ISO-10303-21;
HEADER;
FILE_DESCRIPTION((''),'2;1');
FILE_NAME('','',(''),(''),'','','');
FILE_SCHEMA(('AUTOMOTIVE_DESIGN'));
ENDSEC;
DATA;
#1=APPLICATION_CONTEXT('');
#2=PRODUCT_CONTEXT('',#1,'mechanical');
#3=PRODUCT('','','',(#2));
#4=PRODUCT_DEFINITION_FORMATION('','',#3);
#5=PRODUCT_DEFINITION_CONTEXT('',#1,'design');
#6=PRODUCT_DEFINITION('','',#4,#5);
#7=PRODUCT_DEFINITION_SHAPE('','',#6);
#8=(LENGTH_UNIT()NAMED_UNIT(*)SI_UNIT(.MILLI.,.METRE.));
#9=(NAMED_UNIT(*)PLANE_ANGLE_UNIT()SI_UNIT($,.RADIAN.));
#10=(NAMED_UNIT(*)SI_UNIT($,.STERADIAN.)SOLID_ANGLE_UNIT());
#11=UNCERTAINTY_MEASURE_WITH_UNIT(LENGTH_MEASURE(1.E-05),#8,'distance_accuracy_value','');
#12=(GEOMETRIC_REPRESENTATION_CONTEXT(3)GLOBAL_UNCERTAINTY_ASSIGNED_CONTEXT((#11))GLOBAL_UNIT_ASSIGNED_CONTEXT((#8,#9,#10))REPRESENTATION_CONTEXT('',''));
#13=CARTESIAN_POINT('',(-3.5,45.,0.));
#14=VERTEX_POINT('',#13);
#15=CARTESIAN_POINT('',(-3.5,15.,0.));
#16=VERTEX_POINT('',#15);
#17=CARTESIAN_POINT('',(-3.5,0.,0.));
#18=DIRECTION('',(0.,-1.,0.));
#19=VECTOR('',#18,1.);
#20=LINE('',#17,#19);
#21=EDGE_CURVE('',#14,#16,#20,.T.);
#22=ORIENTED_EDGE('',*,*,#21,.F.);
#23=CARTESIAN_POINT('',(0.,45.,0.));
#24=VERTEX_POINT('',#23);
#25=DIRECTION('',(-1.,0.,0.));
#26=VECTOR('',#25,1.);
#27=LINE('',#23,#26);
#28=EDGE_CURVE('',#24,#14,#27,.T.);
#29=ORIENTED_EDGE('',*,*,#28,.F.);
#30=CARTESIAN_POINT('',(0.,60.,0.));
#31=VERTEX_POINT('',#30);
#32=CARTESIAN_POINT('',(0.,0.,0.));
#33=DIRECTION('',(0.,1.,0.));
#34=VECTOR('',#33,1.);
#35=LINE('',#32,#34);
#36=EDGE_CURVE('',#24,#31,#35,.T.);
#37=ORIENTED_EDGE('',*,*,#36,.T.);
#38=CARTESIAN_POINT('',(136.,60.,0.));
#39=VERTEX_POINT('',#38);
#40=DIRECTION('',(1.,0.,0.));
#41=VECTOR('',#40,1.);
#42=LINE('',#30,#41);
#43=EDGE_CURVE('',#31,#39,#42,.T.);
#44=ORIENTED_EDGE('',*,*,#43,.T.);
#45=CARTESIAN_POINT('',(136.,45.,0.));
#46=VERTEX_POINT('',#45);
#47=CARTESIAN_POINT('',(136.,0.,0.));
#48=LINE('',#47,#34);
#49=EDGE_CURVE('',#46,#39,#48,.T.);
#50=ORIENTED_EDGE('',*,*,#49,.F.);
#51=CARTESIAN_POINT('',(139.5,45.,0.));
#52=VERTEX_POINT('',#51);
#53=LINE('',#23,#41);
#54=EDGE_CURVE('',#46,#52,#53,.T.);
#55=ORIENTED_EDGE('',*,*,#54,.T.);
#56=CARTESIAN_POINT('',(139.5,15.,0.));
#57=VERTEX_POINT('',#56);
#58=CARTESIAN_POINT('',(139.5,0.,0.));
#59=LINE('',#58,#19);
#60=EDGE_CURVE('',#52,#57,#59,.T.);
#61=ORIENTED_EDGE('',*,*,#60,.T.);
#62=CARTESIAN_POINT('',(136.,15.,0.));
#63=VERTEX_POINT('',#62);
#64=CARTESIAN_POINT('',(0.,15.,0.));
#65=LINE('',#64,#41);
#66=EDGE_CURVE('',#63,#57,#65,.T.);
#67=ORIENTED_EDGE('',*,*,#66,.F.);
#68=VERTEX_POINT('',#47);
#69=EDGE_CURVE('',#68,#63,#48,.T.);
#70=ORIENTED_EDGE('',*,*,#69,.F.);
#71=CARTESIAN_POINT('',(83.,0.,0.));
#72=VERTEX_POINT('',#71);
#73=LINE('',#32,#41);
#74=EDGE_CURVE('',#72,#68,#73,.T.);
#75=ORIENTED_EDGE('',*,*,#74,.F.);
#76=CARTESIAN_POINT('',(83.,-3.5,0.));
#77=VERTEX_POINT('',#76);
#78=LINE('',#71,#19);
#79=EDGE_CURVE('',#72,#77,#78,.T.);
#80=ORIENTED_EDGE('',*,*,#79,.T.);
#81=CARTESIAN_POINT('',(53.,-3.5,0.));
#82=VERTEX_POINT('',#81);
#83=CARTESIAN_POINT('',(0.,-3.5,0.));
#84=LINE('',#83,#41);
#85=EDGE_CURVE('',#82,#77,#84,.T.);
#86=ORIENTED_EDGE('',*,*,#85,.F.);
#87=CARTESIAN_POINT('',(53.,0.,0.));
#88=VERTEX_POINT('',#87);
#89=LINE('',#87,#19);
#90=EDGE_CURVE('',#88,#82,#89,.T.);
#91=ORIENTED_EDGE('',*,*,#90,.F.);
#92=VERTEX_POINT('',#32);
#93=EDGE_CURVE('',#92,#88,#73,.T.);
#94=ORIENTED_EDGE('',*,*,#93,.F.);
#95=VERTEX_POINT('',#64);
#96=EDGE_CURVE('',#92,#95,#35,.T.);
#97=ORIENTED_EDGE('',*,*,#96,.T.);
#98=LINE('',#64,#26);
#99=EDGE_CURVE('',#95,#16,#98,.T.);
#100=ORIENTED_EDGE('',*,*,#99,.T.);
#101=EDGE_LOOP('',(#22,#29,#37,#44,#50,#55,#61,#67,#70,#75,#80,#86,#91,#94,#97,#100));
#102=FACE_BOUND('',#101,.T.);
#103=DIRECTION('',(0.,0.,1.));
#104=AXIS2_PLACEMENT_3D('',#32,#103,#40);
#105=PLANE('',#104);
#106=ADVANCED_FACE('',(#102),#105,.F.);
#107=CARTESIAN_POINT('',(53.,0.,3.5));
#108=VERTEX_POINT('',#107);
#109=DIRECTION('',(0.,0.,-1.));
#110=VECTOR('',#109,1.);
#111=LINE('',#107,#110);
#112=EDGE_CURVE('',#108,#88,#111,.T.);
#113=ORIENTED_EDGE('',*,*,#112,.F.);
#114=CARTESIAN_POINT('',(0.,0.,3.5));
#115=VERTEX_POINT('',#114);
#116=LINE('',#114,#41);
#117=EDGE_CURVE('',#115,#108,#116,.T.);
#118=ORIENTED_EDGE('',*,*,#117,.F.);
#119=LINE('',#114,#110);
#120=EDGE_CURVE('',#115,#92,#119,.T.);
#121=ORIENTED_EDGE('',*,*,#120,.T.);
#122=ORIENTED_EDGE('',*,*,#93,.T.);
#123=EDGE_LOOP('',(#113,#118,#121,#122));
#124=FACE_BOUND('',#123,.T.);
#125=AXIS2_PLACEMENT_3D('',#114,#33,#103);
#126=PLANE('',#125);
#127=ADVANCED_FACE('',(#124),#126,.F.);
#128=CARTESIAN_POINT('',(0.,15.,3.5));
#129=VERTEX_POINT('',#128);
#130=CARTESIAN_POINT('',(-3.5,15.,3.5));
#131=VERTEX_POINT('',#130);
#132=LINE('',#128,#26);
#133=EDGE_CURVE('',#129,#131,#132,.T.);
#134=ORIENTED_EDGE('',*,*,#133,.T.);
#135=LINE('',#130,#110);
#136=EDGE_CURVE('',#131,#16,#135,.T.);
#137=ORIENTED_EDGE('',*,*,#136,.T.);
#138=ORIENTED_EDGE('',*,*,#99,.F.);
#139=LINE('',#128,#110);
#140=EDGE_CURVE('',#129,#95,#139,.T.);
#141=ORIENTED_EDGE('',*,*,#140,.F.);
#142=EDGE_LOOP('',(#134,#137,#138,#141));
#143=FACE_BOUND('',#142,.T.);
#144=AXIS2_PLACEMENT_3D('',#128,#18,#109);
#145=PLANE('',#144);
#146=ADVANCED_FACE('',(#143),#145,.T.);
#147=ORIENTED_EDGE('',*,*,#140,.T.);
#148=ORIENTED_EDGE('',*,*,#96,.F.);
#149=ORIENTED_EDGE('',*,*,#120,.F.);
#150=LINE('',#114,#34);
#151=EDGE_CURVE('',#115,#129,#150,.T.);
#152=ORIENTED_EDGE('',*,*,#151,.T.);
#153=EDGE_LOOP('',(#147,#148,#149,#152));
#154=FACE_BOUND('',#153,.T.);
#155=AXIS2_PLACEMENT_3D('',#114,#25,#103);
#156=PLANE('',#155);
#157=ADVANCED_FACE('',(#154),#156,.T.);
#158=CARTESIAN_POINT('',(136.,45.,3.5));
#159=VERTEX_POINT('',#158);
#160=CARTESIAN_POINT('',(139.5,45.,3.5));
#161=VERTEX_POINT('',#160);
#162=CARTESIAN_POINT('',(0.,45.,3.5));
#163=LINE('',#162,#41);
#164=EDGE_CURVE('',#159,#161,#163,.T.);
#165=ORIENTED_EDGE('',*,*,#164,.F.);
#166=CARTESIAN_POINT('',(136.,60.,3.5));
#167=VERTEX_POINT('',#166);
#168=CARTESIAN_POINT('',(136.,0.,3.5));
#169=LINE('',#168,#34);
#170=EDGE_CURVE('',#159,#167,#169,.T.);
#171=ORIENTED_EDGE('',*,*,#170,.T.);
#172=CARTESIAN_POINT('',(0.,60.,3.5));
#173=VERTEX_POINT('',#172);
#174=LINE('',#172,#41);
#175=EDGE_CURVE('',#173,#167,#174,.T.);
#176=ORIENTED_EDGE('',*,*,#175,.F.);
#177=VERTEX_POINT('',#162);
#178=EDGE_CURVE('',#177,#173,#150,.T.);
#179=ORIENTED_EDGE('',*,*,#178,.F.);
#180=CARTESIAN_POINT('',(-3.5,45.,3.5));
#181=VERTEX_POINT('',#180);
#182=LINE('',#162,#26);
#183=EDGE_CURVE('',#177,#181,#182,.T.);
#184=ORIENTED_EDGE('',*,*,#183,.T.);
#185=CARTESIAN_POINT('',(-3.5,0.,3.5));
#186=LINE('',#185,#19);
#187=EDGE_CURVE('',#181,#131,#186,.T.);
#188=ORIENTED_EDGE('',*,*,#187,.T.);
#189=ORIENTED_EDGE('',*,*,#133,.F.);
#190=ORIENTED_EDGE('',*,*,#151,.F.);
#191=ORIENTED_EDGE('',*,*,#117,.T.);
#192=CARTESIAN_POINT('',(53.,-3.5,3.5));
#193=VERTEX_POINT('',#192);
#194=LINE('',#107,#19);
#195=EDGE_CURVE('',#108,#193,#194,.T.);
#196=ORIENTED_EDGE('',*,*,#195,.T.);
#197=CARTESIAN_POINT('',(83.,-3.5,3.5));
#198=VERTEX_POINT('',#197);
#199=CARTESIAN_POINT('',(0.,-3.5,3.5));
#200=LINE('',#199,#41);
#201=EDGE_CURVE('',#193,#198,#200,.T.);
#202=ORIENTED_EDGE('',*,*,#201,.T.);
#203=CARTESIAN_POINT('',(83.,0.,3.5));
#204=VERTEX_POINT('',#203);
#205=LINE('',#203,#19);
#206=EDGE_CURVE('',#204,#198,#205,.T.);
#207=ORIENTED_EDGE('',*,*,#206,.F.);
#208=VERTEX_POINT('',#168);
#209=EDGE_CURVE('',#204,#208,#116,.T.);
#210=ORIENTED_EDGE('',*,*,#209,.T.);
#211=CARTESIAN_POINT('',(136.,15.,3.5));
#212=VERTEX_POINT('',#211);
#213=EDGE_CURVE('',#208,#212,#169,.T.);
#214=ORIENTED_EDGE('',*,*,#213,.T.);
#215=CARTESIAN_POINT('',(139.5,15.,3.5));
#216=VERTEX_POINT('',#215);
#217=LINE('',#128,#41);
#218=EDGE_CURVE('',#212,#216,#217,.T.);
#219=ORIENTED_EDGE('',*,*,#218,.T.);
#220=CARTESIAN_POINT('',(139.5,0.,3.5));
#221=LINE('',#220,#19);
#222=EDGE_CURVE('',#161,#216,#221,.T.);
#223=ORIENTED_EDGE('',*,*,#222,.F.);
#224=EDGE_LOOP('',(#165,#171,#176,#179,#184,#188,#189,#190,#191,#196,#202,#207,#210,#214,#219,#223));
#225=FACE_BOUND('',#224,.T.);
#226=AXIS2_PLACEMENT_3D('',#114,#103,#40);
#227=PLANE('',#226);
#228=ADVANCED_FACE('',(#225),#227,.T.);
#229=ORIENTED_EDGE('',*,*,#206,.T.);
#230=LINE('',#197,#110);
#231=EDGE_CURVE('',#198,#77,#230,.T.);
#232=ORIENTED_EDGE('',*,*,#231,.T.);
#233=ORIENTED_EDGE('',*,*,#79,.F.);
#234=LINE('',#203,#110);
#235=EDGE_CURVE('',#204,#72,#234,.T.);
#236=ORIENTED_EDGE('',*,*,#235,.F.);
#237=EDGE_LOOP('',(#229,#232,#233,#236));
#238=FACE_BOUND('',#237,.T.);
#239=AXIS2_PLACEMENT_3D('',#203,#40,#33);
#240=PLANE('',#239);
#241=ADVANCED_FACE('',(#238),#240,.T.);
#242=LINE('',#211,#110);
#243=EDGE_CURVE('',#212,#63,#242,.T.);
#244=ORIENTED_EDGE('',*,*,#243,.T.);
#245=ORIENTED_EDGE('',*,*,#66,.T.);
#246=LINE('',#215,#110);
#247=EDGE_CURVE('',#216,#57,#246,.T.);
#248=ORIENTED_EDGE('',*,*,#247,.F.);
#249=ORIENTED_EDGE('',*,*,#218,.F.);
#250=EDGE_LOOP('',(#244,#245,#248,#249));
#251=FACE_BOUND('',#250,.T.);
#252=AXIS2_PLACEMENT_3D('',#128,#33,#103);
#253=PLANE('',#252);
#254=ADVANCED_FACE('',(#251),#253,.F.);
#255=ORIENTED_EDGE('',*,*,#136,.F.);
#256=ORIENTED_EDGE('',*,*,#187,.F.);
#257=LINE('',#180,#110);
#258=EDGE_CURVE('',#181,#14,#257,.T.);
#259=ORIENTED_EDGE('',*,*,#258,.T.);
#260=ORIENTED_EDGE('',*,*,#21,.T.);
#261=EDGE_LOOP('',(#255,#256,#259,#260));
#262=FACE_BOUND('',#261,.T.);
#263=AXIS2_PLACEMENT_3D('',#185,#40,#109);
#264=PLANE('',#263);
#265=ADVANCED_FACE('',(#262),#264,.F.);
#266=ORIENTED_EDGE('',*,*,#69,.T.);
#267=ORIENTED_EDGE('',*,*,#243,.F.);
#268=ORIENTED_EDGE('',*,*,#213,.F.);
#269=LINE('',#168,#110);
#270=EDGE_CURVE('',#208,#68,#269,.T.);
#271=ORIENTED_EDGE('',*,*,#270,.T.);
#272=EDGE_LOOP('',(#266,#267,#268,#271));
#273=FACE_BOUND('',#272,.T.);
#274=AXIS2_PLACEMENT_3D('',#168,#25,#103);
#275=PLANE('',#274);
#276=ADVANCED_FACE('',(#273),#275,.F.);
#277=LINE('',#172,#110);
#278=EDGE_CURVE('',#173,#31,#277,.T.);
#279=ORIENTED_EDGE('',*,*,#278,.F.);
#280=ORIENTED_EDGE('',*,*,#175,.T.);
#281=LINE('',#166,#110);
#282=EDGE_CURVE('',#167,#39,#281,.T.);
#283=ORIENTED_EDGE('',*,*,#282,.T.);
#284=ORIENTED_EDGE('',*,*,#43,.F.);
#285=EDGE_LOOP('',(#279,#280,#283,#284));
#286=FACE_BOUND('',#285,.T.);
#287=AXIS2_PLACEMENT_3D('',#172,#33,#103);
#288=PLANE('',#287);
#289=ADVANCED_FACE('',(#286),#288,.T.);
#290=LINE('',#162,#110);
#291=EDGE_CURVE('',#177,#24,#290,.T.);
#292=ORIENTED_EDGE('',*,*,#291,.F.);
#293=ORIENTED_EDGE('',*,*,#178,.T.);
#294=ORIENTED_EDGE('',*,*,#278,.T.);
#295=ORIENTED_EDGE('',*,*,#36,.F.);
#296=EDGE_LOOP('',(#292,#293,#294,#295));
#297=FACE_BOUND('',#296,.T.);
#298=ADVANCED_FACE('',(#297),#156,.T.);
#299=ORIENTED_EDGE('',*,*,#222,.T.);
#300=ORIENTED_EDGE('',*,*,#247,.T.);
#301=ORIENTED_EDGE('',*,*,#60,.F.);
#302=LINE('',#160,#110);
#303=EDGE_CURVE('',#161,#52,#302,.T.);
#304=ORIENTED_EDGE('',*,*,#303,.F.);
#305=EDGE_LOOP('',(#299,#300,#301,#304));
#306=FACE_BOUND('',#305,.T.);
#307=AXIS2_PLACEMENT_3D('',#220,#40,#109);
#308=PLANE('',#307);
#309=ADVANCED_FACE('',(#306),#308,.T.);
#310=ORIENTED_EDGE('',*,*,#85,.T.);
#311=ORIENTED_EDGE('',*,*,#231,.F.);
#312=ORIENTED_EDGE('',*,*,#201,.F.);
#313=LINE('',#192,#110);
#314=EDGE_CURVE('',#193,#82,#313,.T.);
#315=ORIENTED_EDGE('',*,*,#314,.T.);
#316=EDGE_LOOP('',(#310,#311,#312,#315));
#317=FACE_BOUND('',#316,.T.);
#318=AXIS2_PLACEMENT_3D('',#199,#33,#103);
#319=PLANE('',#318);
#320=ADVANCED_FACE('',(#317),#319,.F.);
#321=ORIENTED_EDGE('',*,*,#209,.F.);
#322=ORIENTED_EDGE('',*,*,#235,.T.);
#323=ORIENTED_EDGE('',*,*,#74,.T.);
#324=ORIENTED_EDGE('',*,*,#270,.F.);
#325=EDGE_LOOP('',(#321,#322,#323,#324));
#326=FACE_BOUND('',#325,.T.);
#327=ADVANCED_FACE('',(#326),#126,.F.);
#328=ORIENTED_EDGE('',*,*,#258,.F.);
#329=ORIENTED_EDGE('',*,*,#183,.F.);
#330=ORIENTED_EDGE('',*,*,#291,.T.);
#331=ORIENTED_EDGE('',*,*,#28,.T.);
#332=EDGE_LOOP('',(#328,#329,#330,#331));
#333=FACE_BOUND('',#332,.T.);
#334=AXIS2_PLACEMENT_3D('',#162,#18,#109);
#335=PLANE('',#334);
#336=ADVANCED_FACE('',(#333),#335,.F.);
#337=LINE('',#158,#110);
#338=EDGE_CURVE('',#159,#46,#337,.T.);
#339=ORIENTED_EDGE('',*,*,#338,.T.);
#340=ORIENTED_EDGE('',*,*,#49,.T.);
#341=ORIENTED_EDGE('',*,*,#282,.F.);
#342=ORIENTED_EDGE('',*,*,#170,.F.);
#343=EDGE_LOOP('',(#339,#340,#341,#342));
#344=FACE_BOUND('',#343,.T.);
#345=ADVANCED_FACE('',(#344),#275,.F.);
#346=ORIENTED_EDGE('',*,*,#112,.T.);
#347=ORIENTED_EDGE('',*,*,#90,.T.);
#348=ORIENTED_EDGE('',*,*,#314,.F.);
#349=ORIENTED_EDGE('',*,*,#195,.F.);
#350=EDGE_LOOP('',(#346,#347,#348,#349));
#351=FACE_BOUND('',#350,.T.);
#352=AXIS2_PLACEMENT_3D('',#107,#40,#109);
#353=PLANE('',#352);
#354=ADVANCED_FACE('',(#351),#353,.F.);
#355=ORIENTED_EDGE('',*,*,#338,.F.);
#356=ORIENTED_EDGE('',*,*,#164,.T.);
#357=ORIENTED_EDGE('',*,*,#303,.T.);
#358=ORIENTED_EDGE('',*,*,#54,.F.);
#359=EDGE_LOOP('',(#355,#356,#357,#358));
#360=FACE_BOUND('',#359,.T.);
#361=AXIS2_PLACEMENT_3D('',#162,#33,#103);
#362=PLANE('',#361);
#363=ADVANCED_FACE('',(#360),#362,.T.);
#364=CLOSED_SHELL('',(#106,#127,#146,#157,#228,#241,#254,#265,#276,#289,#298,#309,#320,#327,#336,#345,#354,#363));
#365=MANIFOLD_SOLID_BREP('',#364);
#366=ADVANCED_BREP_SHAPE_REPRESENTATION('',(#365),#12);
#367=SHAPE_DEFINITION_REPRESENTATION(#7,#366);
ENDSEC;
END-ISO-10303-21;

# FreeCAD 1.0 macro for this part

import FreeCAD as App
import Part
import Sketcher

V = App.Vector
Q = App.Units.Quantity


def add_polygon(sketch, points):
    """Adds a closed chain of lines whose ends are joined by coincident constraints."""
    first, n = sketch.GeometryCount, len(points)
    for a, b in zip(points, points[1:] + points[:1]):
        sketch.addGeometry(Part.LineSegment(App.Vector(*a, 0), App.Vector(*b, 0)), False)
    for i in range(n):
        sketch.addConstraint(Sketcher.Constraint("Coincident", first + i, 2, first + (i + 1) % n, 1))

doc = App.newDocument("Part")
body = doc.addObject("PartDesign::Body", "Body")

sketch1 = body.newObject("Sketcher::SketchObject", "Sketch")
sketch1.AttachmentSupport = (doc.getObject("XY_Plane"), [""])
sketch1.MapMode = "FlatFace"
add_polygon(sketch1, [(0, 15), (0, 0), (53, 0), (53, -3.5), (83, -3.5), (83, 0), (136, 0), (136, 15), (139.5, 15), (139.5, 45), (136, 45), (136, 60), (0, 60), (0, 45), (-3.5, 45), (-3.5, 15)])
sketch1.addConstraint(Sketcher.Constraint("Vertical", 0))
sketch1.addConstraint(Sketcher.Constraint("Horizontal", 1))
sketch1.addConstraint(Sketcher.Constraint("Vertical", 2))
sketch1.addConstraint(Sketcher.Constraint("Horizontal", 3))
sketch1.addConstraint(Sketcher.Constraint("Vertical", 4))
sketch1.addConstraint(Sketcher.Constraint("Horizontal", 5))
sketch1.addConstraint(Sketcher.Constraint("Vertical", 6))
sketch1.addConstraint(Sketcher.Constraint("Horizontal", 7))
sketch1.addConstraint(Sketcher.Constraint("Vertical", 8))
sketch1.addConstraint(Sketcher.Constraint("Horizontal", 9))
sketch1.addConstraint(Sketcher.Constraint("Vertical", 10))
sketch1.addConstraint(Sketcher.Constraint("Horizontal", 11))
sketch1.addConstraint(Sketcher.Constraint("Vertical", 12))
sketch1.addConstraint(Sketcher.Constraint("Horizontal", 13))
sketch1.addConstraint(Sketcher.Constraint("Vertical", 14))
sketch1.addConstraint(Sketcher.Constraint("Horizontal", 15))
sketch1.addConstraint(Sketcher.Constraint("Coincident", 0, 2, -1, 1))
sketch1.addConstraint(Sketcher.Constraint("PointOnObject", 4, 2, -1))
sketch1.addConstraint(Sketcher.Constraint("PointOnObject", 11, 2, -2))
sketch1.addConstraint(Sketcher.Constraint("Horizontal", 9, 2, 12, 2))
sketch1.addConstraint(Sketcher.Constraint("Horizontal", 7, 2, 14, 2))
sketch1.addConstraint(Sketcher.Constraint("Vertical", 6, 2, 9, 2))
sketch1.addConstraint(Sketcher.Constraint("Equal", 1, 5))
sketch1.addConstraint(Sketcher.Constraint("Equal", 9, 13))
sketch1.addConstraint(Sketcher.Constraint("Equal", 15, 2))
sketch1.addConstraint(Sketcher.Constraint("Equal", 3, 8))
sketch1.addConstraint(Sketcher.Constraint("Equal", 6, 10))
sketch1.addConstraint(Sketcher.Constraint("DistanceX", 1, 1, 1, 2, Q("53 mm")))
sketch1.addConstraint(Sketcher.Constraint("DistanceX", 3, 1, 3, 2, Q("30 mm")))
sketch1.addConstraint(Sketcher.Constraint("DistanceY", 0, 2, 0, 1, Q("15 mm")))
sketch1.addConstraint(Sketcher.Constraint("DistanceX", 7, 1, 7, 2, Q("3.5 mm")))
pad1 = body.newObject("PartDesign::Pad", "Pad")
pad1.Profile = sketch1
pad1.Length = 3.5

doc.recompute()
